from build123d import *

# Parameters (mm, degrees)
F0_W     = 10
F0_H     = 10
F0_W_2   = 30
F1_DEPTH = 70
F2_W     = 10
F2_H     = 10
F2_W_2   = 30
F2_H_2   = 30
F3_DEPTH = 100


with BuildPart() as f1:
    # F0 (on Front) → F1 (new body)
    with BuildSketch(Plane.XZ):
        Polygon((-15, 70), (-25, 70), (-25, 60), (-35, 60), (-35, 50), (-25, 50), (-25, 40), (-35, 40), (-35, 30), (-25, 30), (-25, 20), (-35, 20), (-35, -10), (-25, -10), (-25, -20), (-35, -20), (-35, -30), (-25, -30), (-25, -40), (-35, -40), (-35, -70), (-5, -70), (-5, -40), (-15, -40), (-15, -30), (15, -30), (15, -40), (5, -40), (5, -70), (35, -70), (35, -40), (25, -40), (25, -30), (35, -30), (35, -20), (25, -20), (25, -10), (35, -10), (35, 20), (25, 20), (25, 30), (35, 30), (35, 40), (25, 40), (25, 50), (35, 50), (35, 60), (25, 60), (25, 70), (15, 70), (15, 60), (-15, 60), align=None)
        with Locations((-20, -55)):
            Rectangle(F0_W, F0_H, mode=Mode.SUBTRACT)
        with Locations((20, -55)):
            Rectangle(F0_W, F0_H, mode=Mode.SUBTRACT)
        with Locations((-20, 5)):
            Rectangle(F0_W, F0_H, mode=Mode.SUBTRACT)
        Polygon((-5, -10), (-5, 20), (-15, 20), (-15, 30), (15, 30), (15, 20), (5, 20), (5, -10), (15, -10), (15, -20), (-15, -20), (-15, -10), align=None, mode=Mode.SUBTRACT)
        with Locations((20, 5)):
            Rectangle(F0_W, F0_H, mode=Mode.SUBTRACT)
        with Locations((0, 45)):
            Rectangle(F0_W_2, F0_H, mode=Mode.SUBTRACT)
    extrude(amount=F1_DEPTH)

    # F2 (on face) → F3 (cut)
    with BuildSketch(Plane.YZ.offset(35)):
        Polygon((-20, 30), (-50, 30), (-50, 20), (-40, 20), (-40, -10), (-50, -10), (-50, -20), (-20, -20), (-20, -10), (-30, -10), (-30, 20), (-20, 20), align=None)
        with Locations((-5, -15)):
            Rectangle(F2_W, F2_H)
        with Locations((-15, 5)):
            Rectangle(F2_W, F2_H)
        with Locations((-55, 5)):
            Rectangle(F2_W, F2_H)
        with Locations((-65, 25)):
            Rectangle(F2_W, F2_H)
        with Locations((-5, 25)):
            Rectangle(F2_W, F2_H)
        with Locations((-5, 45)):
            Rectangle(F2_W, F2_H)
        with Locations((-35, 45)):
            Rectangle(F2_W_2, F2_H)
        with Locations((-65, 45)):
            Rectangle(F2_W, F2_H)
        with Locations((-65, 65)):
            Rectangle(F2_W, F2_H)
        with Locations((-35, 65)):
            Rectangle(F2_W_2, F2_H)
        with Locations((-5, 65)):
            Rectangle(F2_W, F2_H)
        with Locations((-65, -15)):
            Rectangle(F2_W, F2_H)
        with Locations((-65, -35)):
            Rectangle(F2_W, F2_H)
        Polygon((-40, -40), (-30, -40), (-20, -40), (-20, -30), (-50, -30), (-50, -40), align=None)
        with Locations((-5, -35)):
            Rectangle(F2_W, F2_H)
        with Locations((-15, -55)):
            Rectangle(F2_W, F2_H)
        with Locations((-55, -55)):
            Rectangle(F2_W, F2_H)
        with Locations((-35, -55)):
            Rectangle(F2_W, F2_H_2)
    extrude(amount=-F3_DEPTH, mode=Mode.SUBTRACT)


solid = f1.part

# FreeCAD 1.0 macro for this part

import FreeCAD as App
import Part
import Sketcher

V = App.Vector


def add_polygon(sketch, points):
    """Adds a closed chain of lines whose ends are joined by coincident constraints."""
    first, n = sketch.GeometryCount, len(points)
    for a, b in zip(points, points[1:] + points[:1]):
        sketch.addGeometry(Part.LineSegment(App.Vector(*a, 0), App.Vector(*b, 0)), False)
    for i in range(n):
        sketch.addConstraint(Sketcher.Constraint("Coincident", first + i, 2, first + (i + 1) % n, 1))

doc = App.newDocument("Part")
body = doc.addObject("PartDesign::Body", "Body")

sketch1 = body.newObject("Sketcher::SketchObject", "Sketch")
sketch1.AttachmentSupport = (doc.getObject("XZ_Plane"), [""])
sketch1.MapMode = "FlatFace"
add_polygon(sketch1, [(-15, 70), (-25, 70), (-25, 60), (-35, 60), (-35, 50), (-25, 50), (-25, 40), (-35, 40), (-35, 30), (-25, 30), (-25, 20), (-35, 20), (-35, -10), (-25, -10), (-25, -20), (-35, -20), (-35, -30), (-25, -30), (-25, -40), (-35, -40), (-35, -70), (-5, -70), (-5, -40), (-15, -40), (-15, -30), (15, -30), (15, -40), (5, -40), (5, -70), (35, -70), (35, -40), (25, -40), (25, -30), (35, -30), (35, -20), (25, -20), (25, -10), (35, -10), (35, 20), (25, 20), (25, 30), (35, 30), (35, 40), (25, 40), (25, 50), (35, 50), (35, 60), (25, 60), (25, 70), (15, 70), (15, 60), (-15, 60)])
add_polygon(sketch1, [(-15, -60), (-25, -60), (-25, -50), (-15, -50)])
add_polygon(sketch1, [(25, -60), (15, -60), (15, -50), (25, -50)])
add_polygon(sketch1, [(-15, 0), (-25, 0), (-25, 10), (-15, 10)])
add_polygon(sketch1, [(-15, -10), (-5, -10), (-5, 20), (-15, 20), (-15, 30), (15, 30), (15, 20), (5, 20), (5, -10), (15, -10), (15, -20), (-15, -20)])
add_polygon(sketch1, [(25, 0), (15, 0), (15, 10), (25, 10)])
add_polygon(sketch1, [(15, 40), (-15, 40), (-15, 50), (15, 50)])
sketch1.addConstraint([
    Sketcher.Constraint("Horizontal", 0),
    Sketcher.Constraint("Vertical", 1),
    Sketcher.Constraint("Horizontal", 2),
    Sketcher.Constraint("Vertical", 3),
    Sketcher.Constraint("Horizontal", 4),
    Sketcher.Constraint("Vertical", 5),
    Sketcher.Constraint("Horizontal", 6),
    Sketcher.Constraint("Vertical", 7),
    Sketcher.Constraint("Horizontal", 8),
    Sketcher.Constraint("Vertical", 9),
    Sketcher.Constraint("Horizontal", 10),
    Sketcher.Constraint("Vertical", 11),
    Sketcher.Constraint("Horizontal", 12),
    Sketcher.Constraint("Vertical", 13),
    Sketcher.Constraint("Horizontal", 14),
    Sketcher.Constraint("Vertical", 15),
    Sketcher.Constraint("Horizontal", 16),
    Sketcher.Constraint("Vertical", 17),
    Sketcher.Constraint("Horizontal", 18),
    Sketcher.Constraint("Vertical", 19),
    Sketcher.Constraint("Horizontal", 20),
    Sketcher.Constraint("Vertical", 21),
    Sketcher.Constraint("Horizontal", 22),
    Sketcher.Constraint("Vertical", 23),
    Sketcher.Constraint("Horizontal", 24),
    Sketcher.Constraint("Vertical", 25),
    Sketcher.Constraint("Horizontal", 26),
    Sketcher.Constraint("Vertical", 27),
    Sketcher.Constraint("Horizontal", 28),
    Sketcher.Constraint("Vertical", 29),
    Sketcher.Constraint("Horizontal", 30),
    Sketcher.Constraint("Vertical", 31),
    Sketcher.Constraint("Horizontal", 32),
    Sketcher.Constraint("Vertical", 33),
    Sketcher.Constraint("Horizontal", 34),
    Sketcher.Constraint("Vertical", 35),
    Sketcher.Constraint("Horizontal", 36),
    Sketcher.Constraint("Vertical", 37),
    Sketcher.Constraint("Horizontal", 38),
    Sketcher.Constraint("Vertical", 39),
    Sketcher.Constraint("Horizontal", 40),
    Sketcher.Constraint("Vertical", 41),
    Sketcher.Constraint("Horizontal", 42),
    Sketcher.Constraint("Vertical", 43),
    Sketcher.Constraint("Horizontal", 44),
    Sketcher.Constraint("Vertical", 45),
    Sketcher.Constraint("Horizontal", 46),
    Sketcher.Constraint("Vertical", 47),
    Sketcher.Constraint("Horizontal", 48),
    Sketcher.Constraint("Vertical", 49),
    Sketcher.Constraint("Horizontal", 50),
    Sketcher.Constraint("Vertical", 51),
    Sketcher.Constraint("Horizontal", 52),
    Sketcher.Constraint("Vertical", 53),
    Sketcher.Constraint("Horizontal", 54),
    Sketcher.Constraint("Vertical", 55),
    Sketcher.Constraint("Horizontal", 56),
    Sketcher.Constraint("Vertical", 57),
    Sketcher.Constraint("Horizontal", 58),
    Sketcher.Constraint("Vertical", 59),
    Sketcher.Constraint("Horizontal", 60),
    Sketcher.Constraint("Vertical", 61),
    Sketcher.Constraint("Horizontal", 62),
    Sketcher.Constraint("Vertical", 63),
    Sketcher.Constraint("Horizontal", 64),
    Sketcher.Constraint("Vertical", 65),
    Sketcher.Constraint("Horizontal", 66),
    Sketcher.Constraint("Vertical", 67),
    Sketcher.Constraint("Horizontal", 68),
    Sketcher.Constraint("Vertical", 69),
    Sketcher.Constraint("Horizontal", 70),
    Sketcher.Constraint("Vertical", 71),
    Sketcher.Constraint("Horizontal", 72),
    Sketcher.Constraint("Vertical", 73),
    Sketcher.Constraint("Horizontal", 74),
    Sketcher.Constraint("Vertical", 75),
    Sketcher.Constraint("Horizontal", 76),
    Sketcher.Constraint("Vertical", 77),
    Sketcher.Constraint("Horizontal", 78),
    Sketcher.Constraint("Vertical", 79),
    Sketcher.Constraint("Horizontal", 80),
    Sketcher.Constraint("Vertical", 81),
    Sketcher.Constraint("Horizontal", 82),
    Sketcher.Constraint("Vertical", 83),
    Sketcher.Constraint("Symmetric", 6, 2, 29, 2, -1, 1),
    Sketcher.Constraint("Symmetric", 8, 2, 31, 2, -1, 1),
    Sketcher.Constraint("Symmetric", 10, 2, 33, 2, -1, 1),
    Sketcher.Constraint("Symmetric", 14, 2, 37, 2, -1, 1),
    Sketcher.Constraint("Symmetric", 16, 2, 39, 2, -1, 1),
    Sketcher.Constraint("Symmetric", 18, 2, 41, 2, -1, 1),
    Sketcher.Constraint("Symmetric", 46, 2, 52, 2, -1, 1),
    Sketcher.Constraint("Symmetric", 43, 2, 53, 2, -1, 1),
    Sketcher.Constraint("Symmetric", 49, 2, 55, 2, -1, 1),
    Sketcher.Constraint("Symmetric", 50, 2, 56, 2, -1, 1),
    Sketcher.Constraint("Symmetric", 4, 2, 58, 2, -1, 1),
    Sketcher.Constraint("Symmetric", 1, 2, 59, 2, -1, 1),
    Sketcher.Constraint("Symmetric", 35, 2, 61, 2, -1, 1),
    Sketcher.Constraint("Symmetric", 24, 2, 67, 2, -1, 1),
    Sketcher.Constraint("Symmetric", 62, 2, 72, 2, -1, 1),
    Sketcher.Constraint("Symmetric", 66, 2, 73, 2, -1, 1),
    Sketcher.Constraint("Symmetric", 69, 2, 74, 2, -1, 1),
    Sketcher.Constraint("Symmetric", 63, 2, 76, 2, -1, 1),
    Sketcher.Constraint("Symmetric", 75, 2, 77, 2, -1, 1),
    Sketcher.Constraint("Symmetric", 12, 2, 78, 2, -1, 1),
    Sketcher.Constraint("Symmetric", 25, 2, 80, 2, -1, 1),
    Sketcher.Constraint("Symmetric", 57, 2, 81, 2, -1, 1),
    Sketcher.Constraint("Symmetric", 54, 2, 82, 2, -1, 1),
    Sketcher.Constraint("Symmetric", 22, 2, 83, 2, -1, 1),
    Sketcher.Constraint("Symmetric", 20, 2, 27, 2, -2),
    Sketcher.Constraint("Symmetric", 18, 2, 29, 2, -2),
    Sketcher.Constraint("Symmetric", 16, 2, 31, 2, -2),
    Sketcher.Constraint("Symmetric", 14, 2, 33, 2, -2),
    Sketcher.Constraint("Symmetric", 12, 2, 35, 2, -2),
    Sketcher.Constraint("Symmetric", 0, 2, 47, 2, -2),
    Sketcher.Constraint("PointOnObject", 60, 2, -1),
    Sketcher.Constraint("Horizontal", 18, 2, 21, 2),
    Sketcher.Constraint("Horizontal", 16, 2, 23, 2),
    Sketcher.Constraint("Horizontal", 38, 2, 65, 2),
    Sketcher.Constraint("Vertical", 3, 2, 6, 2),
    Sketcher.Constraint("Vertical", 5, 2, 8, 2),
    Sketcher.Constraint("Vertical", 7, 2, 10, 2),
    Sketcher.Constraint("Vertical", 9, 2, 12, 2),
    Sketcher.Constraint("Vertical", 41, 2, 44, 2),
    Sketcher.Constraint("Vertical", 25, 2, 48, 2),
    Sketcher.Constraint("Vertical", 21, 2, 64, 2),
    Sketcher.Constraint("Vertical", 27, 2, 70, 2),
    Sketcher.Constraint("Equal", 0, 2),
    Sketcher.Constraint("Equal", 18, 22),
    Sketcher.Constraint("Equal", 20, 24),
    Sketcher.Constraint("Equal", 78, 1),
    Sketcher.Constraint("Equal", 1, 3),
    Sketcher.Constraint("Equal", 3, 5),
    Sketcher.Constraint("Equal", 5, 7),
    Sketcher.Constraint("Equal", 7, 9),
    Sketcher.Constraint("Equal", 82, 11),
    Sketcher.Constraint("Equal", 9, 13),
    Sketcher.Constraint("Equal", 11, 19),
    Sketcher.Constraint("DistanceX", 0, 2, 0, 1, 10.0),
])
pad1 = body.newObject("PartDesign::Pad", "Pad")
pad1.Profile = sketch1
pad1.Length = 70

sketch2 = body.newObject("Sketcher::SketchObject", "Sketch001")
sketch2.AttachmentSupport = (doc.getObject("YZ_Plane"), [""])
sketch2.MapMode = "FlatFace"
sketch2.AttachmentOffset = App.Placement(V(0, 0, 35), App.Rotation())
add_polygon(sketch2, [(-20, 30), (-50, 30), (-50, 20), (-40, 20), (-40, -10), (-50, -10), (-50, -20), (-20, -20), (-20, -10), (-30, -10), (-30, 20), (-20, 20)])
add_polygon(sketch2, [(-10, -10), (-10, -20), (0, -20), (0, -10)])
add_polygon(sketch2, [(-20, 10), (-20, 0), (-10, 0), (-10, 10)])
add_polygon(sketch2, [(-60, 10), (-60, 0), (-50, 0), (-50, 10)])
add_polygon(sketch2, [(-70, 30), (-70, 20), (-60, 20), (-60, 30)])
add_polygon(sketch2, [(-10, 30), (-10, 20), (0, 20), (0, 30)])
add_polygon(sketch2, [(-10, 50), (-10, 40), (0, 40), (0, 50)])
add_polygon(sketch2, [(-50, 50), (-50, 40), (-20, 40), (-20, 50)])
add_polygon(sketch2, [(-70, 50), (-70, 40), (-60, 40), (-60, 50)])
add_polygon(sketch2, [(-70, 70), (-70, 60), (-60, 60), (-60, 70)])
add_polygon(sketch2, [(-50, 70), (-50, 60), (-20, 60), (-20, 70)])
add_polygon(sketch2, [(-10, 70), (-10, 60), (0, 60), (0, 70)])
add_polygon(sketch2, [(-70, -10), (-70, -20), (-60, -20), (-60, -10)])
add_polygon(sketch2, [(-70, -30), (-70, -40), (-60, -40), (-60, -30)])
add_polygon(sketch2, [(-20, -40), (-20, -30), (-50, -30), (-50, -40), (-40, -40), (-40, -70), (-30, -70), (-30, -40)])
add_polygon(sketch2, [(-10, -30), (-10, -40), (0, -40), (0, -30)])
add_polygon(sketch2, [(-20, -50), (-20, -60), (-10, -60), (-10, -50)])
add_polygon(sketch2, [(-60, -50), (-60, -60), (-50, -60), (-50, -50)])
sketch2.addConstraint([
    Sketcher.Constraint("Horizontal", 0),
    Sketcher.Constraint("Vertical", 1),
    Sketcher.Constraint("Horizontal", 2),
    Sketcher.Constraint("Vertical", 3),
    Sketcher.Constraint("Horizontal", 4),
    Sketcher.Constraint("Vertical", 5),
    Sketcher.Constraint("Horizontal", 6),
    Sketcher.Constraint("Vertical", 7),
    Sketcher.Constraint("Horizontal", 8),
    Sketcher.Constraint("Vertical", 9),
    Sketcher.Constraint("Horizontal", 10),
    Sketcher.Constraint("Vertical", 11),
    Sketcher.Constraint("Vertical", 12),
    Sketcher.Constraint("Horizontal", 13),
    Sketcher.Constraint("Vertical", 14),
    Sketcher.Constraint("Horizontal", 15),
    Sketcher.Constraint("Vertical", 16),
    Sketcher.Constraint("Horizontal", 17),
    Sketcher.Constraint("Vertical", 18),
    Sketcher.Constraint("Horizontal", 19),
    Sketcher.Constraint("Vertical", 20),
    Sketcher.Constraint("Horizontal", 21),
    Sketcher.Constraint("Vertical", 22),
    Sketcher.Constraint("Horizontal", 23),
    Sketcher.Constraint("Vertical", 24),
    Sketcher.Constraint("Horizontal", 25),
    Sketcher.Constraint("Vertical", 26),
    Sketcher.Constraint("Horizontal", 27),
    Sketcher.Constraint("Vertical", 28),
    Sketcher.Constraint("Horizontal", 29),
    Sketcher.Constraint("Vertical", 30),
    Sketcher.Constraint("Horizontal", 31),
    Sketcher.Constraint("Vertical", 32),
    Sketcher.Constraint("Horizontal", 33),
    Sketcher.Constraint("Vertical", 34),
    Sketcher.Constraint("Horizontal", 35),
    Sketcher.Constraint("Vertical", 36),
    Sketcher.Constraint("Horizontal", 37),
    Sketcher.Constraint("Vertical", 38),
    Sketcher.Constraint("Horizontal", 39),
    Sketcher.Constraint("Vertical", 40),
    Sketcher.Constraint("Horizontal", 41),
    Sketcher.Constraint("Vertical", 42),
    Sketcher.Constraint("Horizontal", 43),
    Sketcher.Constraint("Vertical", 44),
    Sketcher.Constraint("Horizontal", 45),
    Sketcher.Constraint("Vertical", 46),
    Sketcher.Constraint("Horizontal", 47),
    Sketcher.Constraint("Vertical", 48),
    Sketcher.Constraint("Horizontal", 49),
    Sketcher.Constraint("Vertical", 50),
    Sketcher.Constraint("Horizontal", 51),
    Sketcher.Constraint("Vertical", 52),
    Sketcher.Constraint("Horizontal", 53),
    Sketcher.Constraint("Vertical", 54),
    Sketcher.Constraint("Horizontal", 55),
    Sketcher.Constraint("Vertical", 56),
    Sketcher.Constraint("Horizontal", 57),
    Sketcher.Constraint("Vertical", 58),
    Sketcher.Constraint("Horizontal", 59),
    Sketcher.Constraint("Vertical", 60),
    Sketcher.Constraint("Horizontal", 61),
    Sketcher.Constraint("Vertical", 62),
    Sketcher.Constraint("Horizontal", 63),
    Sketcher.Constraint("Vertical", 64),
    Sketcher.Constraint("Horizontal", 65),
    Sketcher.Constraint("Vertical", 66),
    Sketcher.Constraint("Horizontal", 67),
    Sketcher.Constraint("Vertical", 68),
    Sketcher.Constraint("Horizontal", 69),
    Sketcher.Constraint("Vertical", 70),
    Sketcher.Constraint("Horizontal", 71),
    Sketcher.Constraint("Vertical", 72),
    Sketcher.Constraint("Horizontal", 73),
    Sketcher.Constraint("Vertical", 74),
    Sketcher.Constraint("Horizontal", 75),
    Sketcher.Constraint("Vertical", 76),
    Sketcher.Constraint("Horizontal", 77),
    Sketcher.Constraint("Vertical", 78),
    Sketcher.Constraint("Horizontal", 79),
    Sketcher.Constraint("Vertical", 80),
    Sketcher.Constraint("Horizontal", 81),
    Sketcher.Constraint("Vertical", 82),
    Sketcher.Constraint("Horizontal", 83),
    Sketcher.Constraint("Symmetric", 13, 2, 29, 2, -1, 1),
    Sketcher.Constraint("Symmetric", 33, 2, 73, 2, -1, 1),
    Sketcher.Constraint("Symmetric", 30, 2, 74, 2, -1, 1),
    Sketcher.Constraint("Symmetric", 1, 2, 5, 2, -1),
    Sketcher.Constraint("Symmetric", 6, 2, 10, 2, -1),
    Sketcher.Constraint("Symmetric", 15, 2, 18, 2, -1),
    Sketcher.Constraint("Symmetric", 7, 2, 19, 2, -1),
    Sketcher.Constraint("Symmetric", 4, 2, 22, 2, -1),
    Sketcher.Constraint("Symmetric", 24, 2, 56, 2, -1),
    Sketcher.Constraint("Symmetric", 23, 2, 58, 2, -1),
    Sketcher.Constraint("Symmetric", 40, 2, 60, 2, -1),
    Sketcher.Constraint("Symmetric", 26, 2, 62, 2, -1),
    Sketcher.Constraint("Symmetric", 11, 2, 64, 2, -1),
    Sketcher.Constraint("Symmetric", 36, 2, 66, 2, -1),
    Sketcher.Constraint("Symmetric", 37, 2, 71, 2, -1),
    Sketcher.Constraint("Symmetric", 49, 2, 76, 2, -1),
    Sketcher.Constraint("Symmetric", 52, 2, 77, 2, -1),
    Sketcher.Constraint("Symmetric", 35, 2, 78, 2, -1),
    Sketcher.Constraint("Symmetric", 38, 2, 79, 2, -1),
    Sketcher.Constraint("Symmetric", 45, 2, 80, 2, -1),
    Sketcher.Constraint("Symmetric", 48, 2, 81, 2, -1),
    Sketcher.Constraint("Symmetric", 39, 2, 82, 2, -1),
    Sketcher.Constraint("Symmetric", 42, 2, 83, 2, -1),
    Sketcher.Constraint("PointOnObject", 13, 2, -2),
    Sketcher.Constraint("PointOnObject", 16, 2, -1),
    Sketcher.Constraint("PointOnObject", 20, 2, -1),
    Sketcher.Constraint("PointOnObject", 53, 2, -2),
    Sketcher.Constraint("Horizontal", 4, 2, 7, 2),
    Sketcher.Constraint("Horizontal", 6, 2, 12, 2),
    Sketcher.Constraint("Horizontal", 10, 2, 24, 2),
    Sketcher.Constraint("Horizontal", 11, 2, 26, 2),
    Sketcher.Constraint("Horizontal", 27, 2, 30, 2),
    Sketcher.Constraint("Horizontal", 33, 2, 36, 2),
    Sketcher.Constraint("Horizontal", 37, 2, 40, 2),
    Sketcher.Constraint("Horizontal", 47, 2, 50, 2),
    Sketcher.Constraint("Horizontal", 51, 2, 54, 2),
    Sketcher.Constraint("Vertical", 23, 2, 25, 2),
    Sketcher.Constraint("Vertical", 18, 2, 28, 2),
    Sketcher.Constraint("Vertical", 31, 2, 32, 2),
    Sketcher.Constraint("Vertical", 22, 2, 36, 2),
    Sketcher.Constraint("Vertical", 27, 2, 40, 2),
    Sketcher.Constraint("Vertical", 26, 2, 41, 2),
    Sketcher.Constraint("Vertical", 43, 2, 44, 2),
    Sketcher.Constraint("Vertical", 3, 2, 67, 2),
    Sketcher.Constraint("Vertical", 9, 2, 69, 2),
    Sketcher.Constraint("Vertical", 55, 2, 72, 2),
    Sketcher.Constraint("Equal", 4, 8),
    Sketcher.Constraint("Equal", 10, 13),
    Sketcher.Constraint("Equal", 15, 17),
    Sketcher.Constraint("Equal", 19, 21),
    Sketcher.Constraint("Equal", 23, 25),
    Sketcher.Constraint("Equal", 67, 69),
    Sketcher.Constraint("Equal", 83, 1),
    Sketcher.Constraint("Equal", 65, 3),
    Sketcher.Constraint("Equal", 1, 5),
    Sketcher.Constraint("Equal", 30, 32),
    Sketcher.Constraint("Equal", 42, 44),
    Sketcher.Constraint("Equal", 58, 60),
    Sketcher.Constraint("Equal", 9, 68),
    Sketcher.Constraint("Equal", 74, 76),
    Sketcher.Constraint("DistanceX", 0, 2, 0, 1, 30.0),
])
pocket1 = body.newObject("PartDesign::Pocket", "Pocket")
pocket1.Profile = sketch2
pocket1.Length = 100

doc.recompute()
